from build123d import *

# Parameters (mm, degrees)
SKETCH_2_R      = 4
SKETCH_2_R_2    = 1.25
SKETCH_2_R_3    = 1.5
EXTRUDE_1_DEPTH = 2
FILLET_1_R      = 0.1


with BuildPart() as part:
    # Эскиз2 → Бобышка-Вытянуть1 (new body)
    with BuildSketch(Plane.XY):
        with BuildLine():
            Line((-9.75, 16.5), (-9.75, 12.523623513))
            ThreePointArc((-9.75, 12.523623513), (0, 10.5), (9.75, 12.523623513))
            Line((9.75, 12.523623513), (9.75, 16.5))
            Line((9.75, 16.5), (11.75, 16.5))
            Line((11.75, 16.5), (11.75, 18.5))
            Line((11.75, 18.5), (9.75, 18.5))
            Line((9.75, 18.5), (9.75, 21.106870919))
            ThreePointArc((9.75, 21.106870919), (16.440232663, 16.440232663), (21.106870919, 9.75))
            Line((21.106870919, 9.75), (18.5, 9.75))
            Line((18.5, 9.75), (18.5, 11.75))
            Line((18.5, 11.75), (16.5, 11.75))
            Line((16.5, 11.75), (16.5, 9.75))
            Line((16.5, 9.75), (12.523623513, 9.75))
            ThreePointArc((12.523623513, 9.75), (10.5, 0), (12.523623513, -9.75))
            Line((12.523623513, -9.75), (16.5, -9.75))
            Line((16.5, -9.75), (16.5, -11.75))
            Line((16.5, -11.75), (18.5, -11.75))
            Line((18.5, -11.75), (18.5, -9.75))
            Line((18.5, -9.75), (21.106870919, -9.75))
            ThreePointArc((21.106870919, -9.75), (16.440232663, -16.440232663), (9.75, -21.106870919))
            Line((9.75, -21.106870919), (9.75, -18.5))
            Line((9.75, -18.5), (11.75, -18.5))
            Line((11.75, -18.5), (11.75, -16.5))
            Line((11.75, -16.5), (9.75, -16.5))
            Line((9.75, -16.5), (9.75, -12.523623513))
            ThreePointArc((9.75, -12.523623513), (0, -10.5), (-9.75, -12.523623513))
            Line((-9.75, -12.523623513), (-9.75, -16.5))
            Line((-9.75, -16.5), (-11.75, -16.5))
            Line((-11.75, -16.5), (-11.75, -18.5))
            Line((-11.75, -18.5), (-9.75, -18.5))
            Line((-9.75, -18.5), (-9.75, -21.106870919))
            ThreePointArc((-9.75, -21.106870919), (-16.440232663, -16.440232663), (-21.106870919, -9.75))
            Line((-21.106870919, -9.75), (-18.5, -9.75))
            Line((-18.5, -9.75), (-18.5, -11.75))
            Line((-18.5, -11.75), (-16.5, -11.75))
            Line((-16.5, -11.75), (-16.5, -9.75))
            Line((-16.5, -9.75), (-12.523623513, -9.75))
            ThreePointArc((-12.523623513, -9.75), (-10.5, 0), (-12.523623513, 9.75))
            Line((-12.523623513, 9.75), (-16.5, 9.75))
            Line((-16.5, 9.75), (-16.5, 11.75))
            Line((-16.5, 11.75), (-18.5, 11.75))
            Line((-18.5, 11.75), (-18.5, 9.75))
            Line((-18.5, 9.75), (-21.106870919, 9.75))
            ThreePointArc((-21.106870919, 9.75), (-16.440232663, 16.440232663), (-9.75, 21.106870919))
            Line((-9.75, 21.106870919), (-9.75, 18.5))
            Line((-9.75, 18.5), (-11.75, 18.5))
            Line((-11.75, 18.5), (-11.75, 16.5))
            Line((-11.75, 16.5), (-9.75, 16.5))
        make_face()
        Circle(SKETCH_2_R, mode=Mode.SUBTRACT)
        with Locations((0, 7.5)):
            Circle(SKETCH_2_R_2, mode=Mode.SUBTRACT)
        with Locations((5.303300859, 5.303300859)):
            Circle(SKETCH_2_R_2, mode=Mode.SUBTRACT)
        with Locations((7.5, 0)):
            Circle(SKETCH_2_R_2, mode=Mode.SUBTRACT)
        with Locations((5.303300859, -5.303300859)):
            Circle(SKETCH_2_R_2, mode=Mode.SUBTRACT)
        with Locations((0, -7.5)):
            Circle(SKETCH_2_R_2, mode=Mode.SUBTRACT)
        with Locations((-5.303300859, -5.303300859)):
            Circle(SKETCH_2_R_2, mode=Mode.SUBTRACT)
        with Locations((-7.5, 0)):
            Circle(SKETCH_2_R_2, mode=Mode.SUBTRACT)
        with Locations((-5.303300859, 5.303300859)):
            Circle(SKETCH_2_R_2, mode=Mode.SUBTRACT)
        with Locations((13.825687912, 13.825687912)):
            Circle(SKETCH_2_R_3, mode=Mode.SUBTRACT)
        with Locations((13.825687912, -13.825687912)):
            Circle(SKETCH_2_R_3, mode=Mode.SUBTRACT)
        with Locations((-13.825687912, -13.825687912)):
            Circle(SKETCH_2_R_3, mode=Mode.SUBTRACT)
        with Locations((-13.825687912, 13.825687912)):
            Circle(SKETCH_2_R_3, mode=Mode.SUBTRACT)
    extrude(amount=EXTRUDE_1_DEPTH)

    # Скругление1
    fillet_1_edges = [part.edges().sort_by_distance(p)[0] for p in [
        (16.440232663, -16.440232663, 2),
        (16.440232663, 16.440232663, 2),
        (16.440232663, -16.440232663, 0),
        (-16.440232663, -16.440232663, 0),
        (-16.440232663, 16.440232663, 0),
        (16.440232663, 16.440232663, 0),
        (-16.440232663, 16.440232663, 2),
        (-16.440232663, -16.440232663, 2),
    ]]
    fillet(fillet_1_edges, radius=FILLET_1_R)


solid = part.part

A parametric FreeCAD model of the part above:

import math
import FreeCAD as App
import Part
import Sketcher

V = App.Vector


def edges_at(feature, points):
    """Names of the edges that pass closest to the given points."""
    edges = feature.Shape.Edges
    near = lambda p: min(range(len(edges)), key=lambda i: edges[i].distToShape(Part.Vertex(*p))[0])
    return sorted({f"Edge{near(p) + 1}" for p in points})

doc = App.newDocument("Part")
params = doc.addObject("Spreadsheet::Sheet", "Params")
for row, (alias, value) in enumerate([
    ("sketch1_diameter", "3 mm"),
    ("sketch1_diameter2", "8 mm"),
    ("sketch1_diameter3", "2.5 mm"),
    ("sketch1_radius", "24.5 mm"),
    ("sketch1_width", "2 mm"),
    ("pad1_length", "2 mm"),
    ("fillet_radius", "0.1 mm"),
], start=1):
    params.set(f"A{row}", alias)
    params.set(f"B{row}", "=" + value)
    params.setAlias(f"B{row}", alias)

body = doc.addObject("PartDesign::Body", "Body")

sketch1 = body.newObject("Sketcher::SketchObject", "Sketch")
sketch1.AttachmentSupport = (doc.getObject("XY_Plane"), [""])
sketch1.MapMode = "FlatFace"
sketch1.addGeometry([
    Part.LineSegment(V(-9.8, 12.5, 0), V(-9.8, 16.5, 0)),
    Part.LineSegment(V(-9.8, 16.5, 0), V(-11.8, 16.5, 0)),
    Part.LineSegment(V(-11.8, 16.5, 0), V(-11.8, 18.5, 0)),
    Part.LineSegment(V(-11.8, 18.5, 0), V(-9.8, 18.5, 0)),
    Part.LineSegment(V(-9.8, 18.5, 0), V(-9.8, 21.1, 0)),
    Part.ArcOfCircle(Part.Circle(V(0, 0, 0), V(0, 0, 1), 23.2), math.radians(115), math.radians(155)),
    Part.LineSegment(V(-21.1, 9.8, 0), V(-18.5, 9.8, 0)),
    Part.LineSegment(V(-18.5, 9.8, 0), V(-18.5, 11.8, 0)),
    Part.LineSegment(V(-18.5, 11.8, 0), V(-16.5, 11.8, 0)),
    Part.LineSegment(V(-16.5, 11.8, 0), V(-16.5, 9.8, 0)),
    Part.LineSegment(V(-16.5, 9.8, 0), V(-12.5, 9.8, 0)),
    Part.ArcOfCircle(Part.Circle(V(-35, 0, 0), V(0, 0, 1), 24.5), math.radians(-23), math.radians(23)),
    Part.LineSegment(V(-12.5, -9.8, 0), V(-16.5, -9.8, 0)),
    Part.LineSegment(V(-16.5, -9.8, 0), V(-16.5, -11.8, 0)),
    Part.LineSegment(V(-16.5, -11.8, 0), V(-18.5, -11.8, 0)),
    Part.LineSegment(V(-18.5, -11.8, 0), V(-18.5, -9.8, 0)),
    Part.LineSegment(V(-18.5, -9.8, 0), V(-21.1, -9.8, 0)),
    Part.ArcOfCircle(Part.Circle(V(0, 0, 0), V(0, 0, 1), 23.2), math.radians(-155), math.radians(-115)),
    Part.LineSegment(V(-9.8, -21.1, 0), V(-9.8, -18.5, 0)),
    Part.LineSegment(V(-9.8, -18.5, 0), V(-11.8, -18.5, 0)),
    Part.LineSegment(V(-11.8, -18.5, 0), V(-11.8, -16.5, 0)),
    Part.LineSegment(V(-11.8, -16.5, 0), V(-9.8, -16.5, 0)),
    Part.LineSegment(V(-9.8, -16.5, 0), V(-9.8, -12.5, 0)),
    Part.ArcOfCircle(Part.Circle(V(0, -35, 0), V(0, 0, 1), 24.5), math.radians(67), math.radians(113)),
    Part.LineSegment(V(9.8, -12.5, 0), V(9.8, -16.5, 0)),
    Part.LineSegment(V(9.8, -16.5, 0), V(11.8, -16.5, 0)),
    Part.LineSegment(V(11.8, -16.5, 0), V(11.8, -18.5, 0)),
    Part.LineSegment(V(11.8, -18.5, 0), V(9.8, -18.5, 0)),
    Part.LineSegment(V(9.8, -18.5, 0), V(9.8, -21.1, 0)),
    Part.ArcOfCircle(Part.Circle(V(0, 0, 0), V(0, 0, 1), 23.2), math.radians(-65), math.radians(-25)),
    Part.LineSegment(V(21.1, -9.8, 0), V(18.5, -9.8, 0)),
    Part.LineSegment(V(18.5, -9.8, 0), V(18.5, -11.8, 0)),
    Part.LineSegment(V(18.5, -11.8, 0), V(16.5, -11.8, 0)),
    Part.LineSegment(V(16.5, -11.8, 0), V(16.5, -9.8, 0)),
    Part.LineSegment(V(16.5, -9.8, 0), V(12.5, -9.8, 0)),
    Part.ArcOfCircle(Part.Circle(V(35, 0, 0), V(0, 0, 1), 24.5), math.radians(157), math.radians(203)),
    Part.LineSegment(V(12.5, 9.8, 0), V(16.5, 9.8, 0)),
    Part.LineSegment(V(16.5, 9.8, 0), V(16.5, 11.8, 0)),
    Part.LineSegment(V(16.5, 11.8, 0), V(18.5, 11.8, 0)),
    Part.LineSegment(V(18.5, 11.8, 0), V(18.5, 9.8, 0)),
    Part.LineSegment(V(18.5, 9.8, 0), V(21.1, 9.8, 0)),
    Part.ArcOfCircle(Part.Circle(V(0, 0, 0), V(0, 0, 1), 23.2), math.radians(25), math.radians(65)),
    Part.LineSegment(V(9.8, 21.1, 0), V(9.8, 18.5, 0)),
    Part.LineSegment(V(9.8, 18.5, 0), V(11.8, 18.5, 0)),
    Part.LineSegment(V(11.8, 18.5, 0), V(11.8, 16.5, 0)),
    Part.LineSegment(V(11.8, 16.5, 0), V(9.8, 16.5, 0)),
    Part.LineSegment(V(9.8, 16.5, 0), V(9.8, 12.5, 0)),
    Part.ArcOfCircle(Part.Circle(V(0, 35, 0), V(0, 0, 1), 24.5), math.radians(-113), math.radians(-67)),
    Part.Circle(V(13.8, -13.8, 0), V(0, 0, 1), 1.5),
    Part.Circle(V(5.3, -5.3, 0), V(0, 0, 1), 1.2),
    Part.Circle(V(0, -7.5, 0), V(0, 0, 1), 1.2),
    Part.Circle(V(7.5, 0, 0), V(0, 0, 1), 1.2),
    Part.Circle(V(0, 0, 0), V(0, 0, 1), 4),
    Part.Circle(V(-13.8, -13.8, 0), V(0, 0, 1), 1.5),
    Part.Circle(V(-5.3, -5.3, 0), V(0, 0, 1), 1.2),
    Part.Circle(V(-7.5, 0, 0), V(0, 0, 1), 1.2),
    Part.Circle(V(5.3, 5.3, 0), V(0, 0, 1), 1.2),
    Part.Circle(V(0, 7.5, 0), V(0, 0, 1), 1.2),
    Part.Circle(V(13.8, 13.8, 0), V(0, 0, 1), 1.5),
    Part.Circle(V(-5.3, 5.3, 0), V(0, 0, 1), 1.2),
    Part.Circle(V(-13.8, 13.8, 0), V(0, 0, 1), 1.5),
], False)
sketch1.addConstraint([
    Sketcher.Constraint("Coincident", 0, 2, 1, 1),
    Sketcher.Constraint("Coincident", 1, 2, 2, 1),
    Sketcher.Constraint("Coincident", 2, 2, 3, 1),
    Sketcher.Constraint("Coincident", 3, 2, 4, 1),
    Sketcher.Constraint("Coincident", 4, 2, 5, 1),
    Sketcher.Constraint("Coincident", 5, 2, 6, 1),
    Sketcher.Constraint("Coincident", 6, 2, 7, 1),
    Sketcher.Constraint("Coincident", 7, 2, 8, 1),
    Sketcher.Constraint("Coincident", 8, 2, 9, 1),
    Sketcher.Constraint("Coincident", 9, 2, 10, 1),
    Sketcher.Constraint("Coincident", 10, 2, 11, 2),
    Sketcher.Constraint("Coincident", 11, 1, 12, 1),
    Sketcher.Constraint("Coincident", 12, 2, 13, 1),
    Sketcher.Constraint("Coincident", 13, 2, 14, 1),
    Sketcher.Constraint("Coincident", 14, 2, 15, 1),
    Sketcher.Constraint("Coincident", 15, 2, 16, 1),
    Sketcher.Constraint("Coincident", 16, 2, 17, 1),
    Sketcher.Constraint("Coincident", 17, 2, 18, 1),
    Sketcher.Constraint("Coincident", 18, 2, 19, 1),
    Sketcher.Constraint("Coincident", 19, 2, 20, 1),
    Sketcher.Constraint("Coincident", 20, 2, 21, 1),
    Sketcher.Constraint("Coincident", 21, 2, 22, 1),
    Sketcher.Constraint("Coincident", 22, 2, 23, 2),
    Sketcher.Constraint("Coincident", 23, 1, 24, 1),
    Sketcher.Constraint("Coincident", 24, 2, 25, 1),
    Sketcher.Constraint("Coincident", 25, 2, 26, 1),
    Sketcher.Constraint("Coincident", 26, 2, 27, 1),
    Sketcher.Constraint("Coincident", 27, 2, 28, 1),
    Sketcher.Constraint("Coincident", 28, 2, 29, 1),
    Sketcher.Constraint("Coincident", 29, 2, 30, 1),
    Sketcher.Constraint("Coincident", 30, 2, 31, 1),
    Sketcher.Constraint("Coincident", 31, 2, 32, 1),
    Sketcher.Constraint("Coincident", 32, 2, 33, 1),
    Sketcher.Constraint("Coincident", 33, 2, 34, 1),
    Sketcher.Constraint("Coincident", 34, 2, 35, 2),
    Sketcher.Constraint("Coincident", 35, 1, 36, 1),
    Sketcher.Constraint("Coincident", 36, 2, 37, 1),
    Sketcher.Constraint("Coincident", 37, 2, 38, 1),
    Sketcher.Constraint("Coincident", 38, 2, 39, 1),
    Sketcher.Constraint("Coincident", 39, 2, 40, 1),
    Sketcher.Constraint("Coincident", 40, 2, 41, 1),
    Sketcher.Constraint("Coincident", 41, 2, 42, 1),
    Sketcher.Constraint("Coincident", 42, 2, 43, 1),
    Sketcher.Constraint("Coincident", 43, 2, 44, 1),
    Sketcher.Constraint("Coincident", 44, 2, 45, 1),
    Sketcher.Constraint("Coincident", 45, 2, 46, 1),
    Sketcher.Constraint("Coincident", 46, 2, 47, 2),
    Sketcher.Constraint("Coincident", 47, 1, 0, 1),
    Sketcher.Constraint("Vertical", 0),
    Sketcher.Constraint("Horizontal", 1),
    Sketcher.Constraint("Vertical", 2),
    Sketcher.Constraint("Horizontal", 3),
    Sketcher.Constraint("Vertical", 4),
    Sketcher.Constraint("Horizontal", 6),
    Sketcher.Constraint("Vertical", 7),
    Sketcher.Constraint("Horizontal", 8),
    Sketcher.Constraint("Vertical", 9),
    Sketcher.Constraint("Horizontal", 10),
    Sketcher.Constraint("Horizontal", 12),
    Sketcher.Constraint("Vertical", 13),
    Sketcher.Constraint("Horizontal", 14),
    Sketcher.Constraint("Vertical", 15),
    Sketcher.Constraint("Horizontal", 16),
    Sketcher.Constraint("Vertical", 18),
    Sketcher.Constraint("Horizontal", 19),
    Sketcher.Constraint("Vertical", 20),
    Sketcher.Constraint("Horizontal", 21),
    Sketcher.Constraint("Vertical", 22),
    Sketcher.Constraint("Vertical", 24),
    Sketcher.Constraint("Horizontal", 25),
    Sketcher.Constraint("Vertical", 26),
    Sketcher.Constraint("Horizontal", 27),
    Sketcher.Constraint("Vertical", 28),
    Sketcher.Constraint("Horizontal", 30),
    Sketcher.Constraint("Vertical", 31),
    Sketcher.Constraint("Horizontal", 32),
    Sketcher.Constraint("Vertical", 33),
    Sketcher.Constraint("Horizontal", 34),
    Sketcher.Constraint("Horizontal", 36),
    Sketcher.Constraint("Vertical", 37),
    Sketcher.Constraint("Horizontal", 38),
    Sketcher.Constraint("Vertical", 39),
    Sketcher.Constraint("Horizontal", 40),
    Sketcher.Constraint("Vertical", 42),
    Sketcher.Constraint("Horizontal", 43),
    Sketcher.Constraint("Vertical", 44),
    Sketcher.Constraint("Horizontal", 45),
    Sketcher.Constraint("Vertical", 46),
    Sketcher.Constraint("Coincident", 5, 3, -1, 1),
    Sketcher.Constraint("Coincident", 17, 3, -1, 1),
    Sketcher.Constraint("Coincident", 29, 3, -1, 1),
    Sketcher.Constraint("Coincident", 41, 3, -1, 1),
    Sketcher.Constraint("Coincident", 52, 3, -1, 1),
    Sketcher.Constraint("Equal", 5, 17),
    Sketcher.Constraint("Equal", 11, 23),
    Sketcher.Constraint("Equal", 17, 29),
    Sketcher.Constraint("Equal", 23, 35),
    Sketcher.Constraint("Equal", 29, 41),
    Sketcher.Constraint("Equal", 35, 47),
    Sketcher.Constraint("Equal", 49, 50),
    Sketcher.Constraint("Equal", 50, 51),
    Sketcher.Constraint("Equal", 48, 53),
    Sketcher.Constraint("Equal", 51, 54),
    Sketcher.Constraint("Equal", 54, 55),
    Sketcher.Constraint("Equal", 55, 56),
    Sketcher.Constraint("Equal", 56, 57),
    Sketcher.Constraint("Equal", 53, 58),
    Sketcher.Constraint("Equal", 57, 59),
    Sketcher.Constraint("Equal", 58, 60),
    Sketcher.Constraint("Symmetric", 11, 3, 35, 3, -1, 1),
    Sketcher.Constraint("Symmetric", 23, 3, 47, 3, -1, 1),
    Sketcher.Constraint("Symmetric", 51, 3, 55, 3, -1, 1),
    Sketcher.Constraint("Symmetric", 54, 3, 56, 3, -1, 1),
    Sketcher.Constraint("Symmetric", 50, 3, 57, 3, -1, 1),
    Sketcher.Constraint("Symmetric", 53, 3, 58, 3, -1, 1),
    Sketcher.Constraint("Symmetric", 49, 3, 59, 3, -1, 1),
    Sketcher.Constraint("Symmetric", 48, 3, 60, 3, -1, 1),
    Sketcher.Constraint("Symmetric", 0, 2, 24, 2, -1, 1),
    Sketcher.Constraint("Symmetric", 2, 2, 26, 2, -1, 1),
    Sketcher.Constraint("Symmetric", 6, 2, 30, 2, -1, 1),
    Sketcher.Constraint("Symmetric", 8, 2, 32, 2, -1, 1),
    Sketcher.Constraint("Symmetric", 12, 2, 36, 2, -1, 1),
    Sketcher.Constraint("Symmetric", 14, 2, 38, 2, -1, 1),
    Sketcher.Constraint("Symmetric", 18, 2, 42, 2, -1, 1),
    Sketcher.Constraint("Symmetric", 20, 2, 44, 2, -1, 1),
    Sketcher.Constraint("Symmetric", 48, 3, 53, 3, -2),
    Sketcher.Constraint("Symmetric", 49, 3, 54, 3, -2),
    Sketcher.Constraint("Symmetric", 22, 2, 23, 1, -2),
    Sketcher.Constraint("Symmetric", 20, 2, 25, 2, -2),
    Sketcher.Constraint("Symmetric", 18, 2, 27, 2, -2),
    Sketcher.Constraint("Symmetric", 15, 2, 30, 2, -2),
    Sketcher.Constraint("Symmetric", 13, 2, 32, 2, -2),
    Sketcher.Constraint("Symmetric", 11, 1, 34, 2, -2),
    Sketcher.Constraint("PointOnObject", 50, 3, -2),
    Sketcher.Constraint("PointOnObject", 51, 3, -1),
    Sketcher.Constraint("Horizontal", 6, 2, 9, 2),
    Sketcher.Constraint("Horizontal", 12, 2, 15, 2),
    Sketcher.Constraint("Horizontal", 36, 2, 39, 2),
    Sketcher.Constraint("Horizontal", 4, 2, 41, 2),
    Sketcher.Constraint("Horizontal", 46, 2, 47, 1),
    Sketcher.Constraint("Vertical", 0, 2, 3, 2),
    Sketcher.Constraint("Equal", 3, 8),
    Sketcher.Constraint("Equal", 36, 0),
    Sketcher.Constraint("Equal", 45, 2),
    Sketcher.Constraint("Equal", 40, 4),
    Sketcher.Constraint("Equal", 2, 7),
    Sketcher.Constraint("Diameter", 48, 3.0),
    Sketcher.Constraint("Diameter", 52, 8.0),
    Sketcher.Constraint("Diameter", 49, 2.5),
    Sketcher.Constraint("Radius", 11, 24.5),
    Sketcher.Constraint("DistanceX", 1, 2, 1, 1, 2.0),
    Sketcher.Constraint("Radius", 5, 23.25),
    Sketcher.Constraint("DistanceX", 11, 3, -1, 1, 35.0),
    Sketcher.Constraint("DistanceY", 23, 3, -1, 1, 35.0),
    Sketcher.Constraint("DistanceY", 50, 3, -1, 1, 7.5),
    Sketcher.Constraint("DistanceX", -1, 1, 51, 3, 7.5),
    Sketcher.Constraint("DistanceY", -1, 1, 0, 2, 16.5),
    Sketcher.Constraint("DistanceX", 0, 2, -1, 1, 9.75),
    Sketcher.Constraint("DistanceX", -1, 1, 49, 3, 5.303301),
    Sketcher.Constraint("DistanceY", 49, 3, -1, 1, 5.303301),
    Sketcher.Constraint("DistanceX", -1, 1, 48, 3, 13.825688),
    Sketcher.Constraint("DistanceY", 48, 3, -1, 1, 13.825688),
])
sketch1.setExpression("Constraints[146]", "Params.sketch1_diameter")
sketch1.setExpression("Constraints[147]", "Params.sketch1_diameter2")
sketch1.setExpression("Constraints[148]", "Params.sketch1_diameter3")
sketch1.setExpression("Constraints[149]", "Params.sketch1_radius")
sketch1.setExpression("Constraints[150]", "Params.sketch1_width")
pad1 = body.newObject("PartDesign::Pad", "Pad")
pad1.Profile = sketch1
pad1.setExpression("Length", "Params.pad1_length")
doc.recompute()

fillet = body.newObject("PartDesign::Fillet", "Fillet")
fillet.Base = (pad1, edges_at(pad1, [
    (16.44, -16.44, 2),
    (16.44, 16.44, 2),
    (16.44, -16.44, 0),
    (-16.44, -16.44, 0),
    (-16.44, 16.44, 0),
    (16.44, 16.44, 0),
    (-16.44, 16.44, 2),
    (-16.44, -16.44, 2),
]))
fillet.setExpression("Radius", "Params.fillet_radius")

doc.recompute()
